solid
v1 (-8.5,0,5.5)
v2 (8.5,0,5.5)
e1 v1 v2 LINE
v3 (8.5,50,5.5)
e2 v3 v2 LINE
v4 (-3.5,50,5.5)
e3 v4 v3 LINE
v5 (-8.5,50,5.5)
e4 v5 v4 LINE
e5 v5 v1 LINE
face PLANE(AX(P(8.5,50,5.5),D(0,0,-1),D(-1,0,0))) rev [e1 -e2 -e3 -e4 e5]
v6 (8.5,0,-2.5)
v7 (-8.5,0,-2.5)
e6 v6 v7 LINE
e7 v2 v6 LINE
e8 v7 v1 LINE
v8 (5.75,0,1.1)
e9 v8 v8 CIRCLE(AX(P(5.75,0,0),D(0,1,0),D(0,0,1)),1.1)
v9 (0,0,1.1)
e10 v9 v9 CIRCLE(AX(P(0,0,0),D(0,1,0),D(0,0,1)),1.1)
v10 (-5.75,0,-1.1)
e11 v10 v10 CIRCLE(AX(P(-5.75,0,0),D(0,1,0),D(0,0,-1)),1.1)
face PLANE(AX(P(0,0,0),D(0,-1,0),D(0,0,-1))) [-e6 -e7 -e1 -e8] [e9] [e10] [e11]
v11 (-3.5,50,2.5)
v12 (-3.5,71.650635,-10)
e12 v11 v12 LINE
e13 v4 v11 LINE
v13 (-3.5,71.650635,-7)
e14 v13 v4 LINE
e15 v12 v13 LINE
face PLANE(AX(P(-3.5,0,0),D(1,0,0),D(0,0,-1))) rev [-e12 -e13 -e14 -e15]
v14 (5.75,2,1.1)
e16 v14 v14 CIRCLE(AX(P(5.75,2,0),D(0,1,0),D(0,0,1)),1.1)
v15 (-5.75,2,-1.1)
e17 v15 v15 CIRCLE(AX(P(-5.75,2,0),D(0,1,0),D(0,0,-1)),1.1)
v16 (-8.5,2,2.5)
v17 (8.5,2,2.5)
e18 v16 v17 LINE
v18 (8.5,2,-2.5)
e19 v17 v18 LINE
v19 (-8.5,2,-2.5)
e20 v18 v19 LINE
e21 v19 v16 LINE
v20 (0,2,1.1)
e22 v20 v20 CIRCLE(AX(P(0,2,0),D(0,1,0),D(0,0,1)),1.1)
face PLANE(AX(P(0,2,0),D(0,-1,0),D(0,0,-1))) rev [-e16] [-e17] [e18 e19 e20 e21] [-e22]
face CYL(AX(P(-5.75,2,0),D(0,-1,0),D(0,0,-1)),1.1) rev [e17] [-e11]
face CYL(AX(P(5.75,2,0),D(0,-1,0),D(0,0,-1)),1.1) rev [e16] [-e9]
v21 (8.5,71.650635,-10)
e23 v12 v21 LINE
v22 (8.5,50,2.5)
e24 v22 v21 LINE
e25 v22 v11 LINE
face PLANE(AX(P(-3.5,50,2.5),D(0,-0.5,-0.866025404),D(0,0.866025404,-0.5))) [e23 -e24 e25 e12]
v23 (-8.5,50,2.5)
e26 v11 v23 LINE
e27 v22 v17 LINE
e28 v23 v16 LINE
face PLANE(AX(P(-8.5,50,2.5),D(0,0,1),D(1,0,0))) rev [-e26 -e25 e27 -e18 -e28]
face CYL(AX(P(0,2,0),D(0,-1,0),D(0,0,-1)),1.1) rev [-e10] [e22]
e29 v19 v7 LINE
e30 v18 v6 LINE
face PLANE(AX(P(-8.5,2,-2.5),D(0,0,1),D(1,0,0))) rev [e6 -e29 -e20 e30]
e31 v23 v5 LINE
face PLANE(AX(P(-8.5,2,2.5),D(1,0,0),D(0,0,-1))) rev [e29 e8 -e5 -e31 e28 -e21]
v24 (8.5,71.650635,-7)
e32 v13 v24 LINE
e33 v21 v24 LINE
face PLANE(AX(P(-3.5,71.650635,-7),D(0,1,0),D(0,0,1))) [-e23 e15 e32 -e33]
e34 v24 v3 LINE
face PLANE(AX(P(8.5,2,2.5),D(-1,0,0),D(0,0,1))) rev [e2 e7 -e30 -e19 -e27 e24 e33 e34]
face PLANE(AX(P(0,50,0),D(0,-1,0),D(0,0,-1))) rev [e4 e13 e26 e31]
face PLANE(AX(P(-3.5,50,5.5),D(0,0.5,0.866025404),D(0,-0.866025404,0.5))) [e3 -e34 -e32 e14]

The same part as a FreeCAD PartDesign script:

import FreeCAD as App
import Part
import Sketcher

V = App.Vector
Q = App.Units.Quantity

doc = App.newDocument("Part")
params = doc.addObject("Spreadsheet::Sheet", "Params")
for row, (alias, value) in enumerate([
    ("sketch1_diameter", "2.2 mm"),
    ("sketch1_width", "17 mm"),
    ("sketch1_height", "5 mm"),
    ("pad1_length", "2 mm"),
    ("sketch2_width", "17 mm"),
    ("sketch2_height", "3 mm"),
    ("pad2_length", "50 mm"),
    ("sketch3_height", "3 mm"),
    ("sketch3_length", "25 mm"),
    ("pad3_length", "12 mm"),
], start=1):
    params.set(f"A{row}", alias)
    params.set(f"B{row}", "=" + value)
    params.setAlias(f"B{row}", alias)

body = doc.addObject("PartDesign::Body", "Body")

# Sketch on XZ plane
sketch1 = body.newObject("Sketcher::SketchObject", "Sketch")
sketch1.AttachmentSupport = (doc.getObject("XZ_Plane"), [""])
sketch1.MapMode = "FlatFace"
sketch1.addGeometry([
    Part.LineSegment(V(-8.5, -2.5, 0), V(-8.5, 2.5, 0)),  # 0
    Part.LineSegment(V(-8.5, 2.5, 0), V(8.5, 2.5, 0)),  # 1
    Part.LineSegment(V(8.5, 2.5, 0), V(8.5, -2.5, 0)),  # 2
    Part.LineSegment(V(8.5, -2.5, 0), V(-8.5, -2.5, 0)),  # 3
    Part.Circle(V(-5.75, 0, 0), V(0, 0, 1), 1.1),  # 4
    Part.Circle(V(0, 0, 0), V(0, 0, 1), 1.1),  # 5
    Part.Circle(V(5.75, 0, 0), V(0, 0, 1), 1.1),  # 6
], False)
sketch1.addConstraint([
    Sketcher.Constraint("Coincident", 0, 2, 1, 1),
    Sketcher.Constraint("Coincident", 1, 2, 2, 1),
    Sketcher.Constraint("Coincident", 2, 2, 3, 1),
    Sketcher.Constraint("Coincident", 3, 2, 0, 1),
    Sketcher.Constraint("Vertical", 0),
    Sketcher.Constraint("Horizontal", 1),
    Sketcher.Constraint("Vertical", 2),
    Sketcher.Constraint("Horizontal", 3),
    Sketcher.Constraint("Coincident", 5, 3, -1, 1),
    Sketcher.Constraint("Equal", 4, 5),
    Sketcher.Constraint("Equal", 5, 6),
    Sketcher.Constraint("Symmetric", 4, 3, 6, 3, -1, 1),
    Sketcher.Constraint("Symmetric", 0, 2, 2, 2, -1, 1),
    Sketcher.Constraint("PointOnObject", 4, 3, -1),
    Sketcher.Constraint("Diameter", 4, 2.2),
    Sketcher.Constraint("DistanceX", 1, 1, 1, 2, 17.0),
    Sketcher.Constraint("DistanceY", 0, 1, 0, 2, 5.0),
    Sketcher.Constraint("DistanceX", 4, 3, 6, 3, 11.5),
])
sketch1.setExpression("Constraints[14]", "Params.sketch1_diameter")
sketch1.setExpression("Constraints[15]", "Params.sketch1_width")
sketch1.setExpression("Constraints[16]", "Params.sketch1_height")
pad1 = body.newObject("PartDesign::Pad", "Pad")
pad1.Profile = sketch1
pad1.setExpression("Length", "Params.pad1_length")
pad1.Reversed = True

# Sketch on XZ plane
sketch2 = body.newObject("Sketcher::SketchObject", "Sketch001")
sketch2.AttachmentSupport = (doc.getObject("XZ_Plane"), [""])
sketch2.MapMode = "FlatFace"
sketch2.addGeometry([
    Part.LineSegment(V(-8.5, 2.5, 0), V(-8.5, 5.5, 0)),
    Part.LineSegment(V(-8.5, 5.5, 0), V(8.5, 5.5, 0)),
    Part.LineSegment(V(8.5, 5.5, 0), V(8.5, 2.5, 0)),
    Part.LineSegment(V(8.5, 2.5, 0), V(-8.5, 2.5, 0)),
], False)
sketch2.addConstraint([
    Sketcher.Constraint("Coincident", 0, 2, 1, 1),
    Sketcher.Constraint("Coincident", 1, 2, 2, 1),
    Sketcher.Constraint("Coincident", 2, 2, 3, 1),
    Sketcher.Constraint("Coincident", 3, 2, 0, 1),
    Sketcher.Constraint("Vertical", 0),
    Sketcher.Constraint("Horizontal", 1),
    Sketcher.Constraint("Vertical", 2),
    Sketcher.Constraint("Horizontal", 3),
    Sketcher.Constraint("DistanceX", 1, 1, 1, 2, 17.0),
    Sketcher.Constraint("DistanceY", 0, 1, 0, 2, 3.0),
    Sketcher.Constraint("DistanceX", 0, 2, -1, 1, 8.5),
    Sketcher.Constraint("DistanceY", -1, 1, 0, 2, 5.5),
])
sketch2.setExpression("Constraints[8]", "Params.sketch2_width")
sketch2.setExpression("Constraints[9]", "Params.sketch2_height")
pad2 = body.newObject("PartDesign::Pad", "Pad001")
pad2.Profile = sketch2
pad2.setExpression("Length", "Params.pad2_length")
pad2.Reversed = True

# Sketch on YZ plane
sketch3 = body.newObject("Sketcher::SketchObject", "Sketch002")
sketch3.AttachmentSupport = (doc.getObject("YZ_Plane"), [""])
sketch3.MapMode = "FlatFace"
sketch3.AttachmentOffset = App.Placement(V(0, 0, 8.5), App.Rotation())
sketch3.addGeometry([
    Part.LineSegment(V(71.650635, -7, 0), V(50, 5.5, 0)),
    Part.LineSegment(V(50, 5.5, 0), V(50, 2.5, 0)),
    Part.LineSegment(V(50, 2.5, 0), V(71.650635, -10, 0)),
    Part.LineSegment(V(71.650635, -10, 0), V(71.650635, -7, 0)),
], False)
sketch3.addConstraint([
    Sketcher.Constraint("Coincident", 0, 2, 1, 1),
    Sketcher.Constraint("Coincident", 1, 2, 2, 1),
    Sketcher.Constraint("Coincident", 2, 2, 3, 1),
    Sketcher.Constraint("Coincident", 3, 2, 0, 1),
    Sketcher.Constraint("Vertical", 1),
    Sketcher.Constraint("Vertical", 3),
    Sketcher.Constraint("Parallel", 0, 2),
    Sketcher.Constraint("DistanceY", 1, 2, 1, 1, 3.0),
    Sketcher.Constraint("Angle", 0, Q("150 deg")),
    Sketcher.Constraint("Distance", 0, 25.0),
    Sketcher.Constraint("DistanceX", -1, 1, 0, 2, 50.0),
    Sketcher.Constraint("DistanceY", 2, 2, -1, 1, 10.0),
])
sketch3.setExpression("Constraints[7]", "Params.sketch3_height")
sketch3.setExpression("Constraints[9]", "Params.sketch3_length")
pad3 = body.newObject("PartDesign::Pad", "Pad002")
pad3.Profile = sketch3
pad3.setExpression("Length", "Params.pad3_length")
pad3.Reversed = True

doc.recompute()
